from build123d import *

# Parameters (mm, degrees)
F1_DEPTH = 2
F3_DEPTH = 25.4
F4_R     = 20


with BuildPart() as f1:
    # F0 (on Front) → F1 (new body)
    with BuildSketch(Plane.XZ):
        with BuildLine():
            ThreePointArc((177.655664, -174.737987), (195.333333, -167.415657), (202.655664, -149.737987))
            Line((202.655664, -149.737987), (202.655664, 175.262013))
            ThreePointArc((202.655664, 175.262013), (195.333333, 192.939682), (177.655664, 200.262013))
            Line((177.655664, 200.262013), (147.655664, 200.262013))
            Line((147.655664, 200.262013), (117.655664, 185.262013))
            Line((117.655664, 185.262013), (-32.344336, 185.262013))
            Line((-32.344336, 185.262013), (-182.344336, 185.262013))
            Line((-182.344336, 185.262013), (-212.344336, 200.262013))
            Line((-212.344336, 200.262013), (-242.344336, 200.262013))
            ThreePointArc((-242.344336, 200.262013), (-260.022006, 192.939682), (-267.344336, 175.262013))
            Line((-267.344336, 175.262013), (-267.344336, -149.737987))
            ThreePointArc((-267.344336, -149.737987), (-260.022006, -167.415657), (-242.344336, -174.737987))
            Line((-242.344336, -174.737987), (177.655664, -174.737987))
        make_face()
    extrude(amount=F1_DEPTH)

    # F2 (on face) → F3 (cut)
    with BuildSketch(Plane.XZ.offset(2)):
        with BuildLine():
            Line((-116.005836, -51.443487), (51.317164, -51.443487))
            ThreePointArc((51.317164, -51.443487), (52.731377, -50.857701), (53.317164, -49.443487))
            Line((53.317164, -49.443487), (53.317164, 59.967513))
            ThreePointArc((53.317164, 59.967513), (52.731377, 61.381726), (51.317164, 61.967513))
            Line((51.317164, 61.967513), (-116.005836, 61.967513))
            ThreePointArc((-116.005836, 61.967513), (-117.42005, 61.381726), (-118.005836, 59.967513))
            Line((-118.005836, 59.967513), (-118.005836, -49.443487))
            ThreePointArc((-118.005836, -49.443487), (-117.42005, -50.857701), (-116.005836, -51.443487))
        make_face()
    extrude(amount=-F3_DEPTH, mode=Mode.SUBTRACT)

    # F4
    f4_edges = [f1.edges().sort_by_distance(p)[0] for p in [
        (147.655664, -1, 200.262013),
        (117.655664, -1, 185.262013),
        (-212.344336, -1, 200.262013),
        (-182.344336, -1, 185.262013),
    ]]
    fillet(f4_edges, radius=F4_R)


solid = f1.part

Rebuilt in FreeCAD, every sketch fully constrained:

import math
import FreeCAD as App
import Part
import Sketcher

V = App.Vector
Q = App.Units.Quantity


def edges_at(feature, points):
    """Names of the edges that pass closest to the given points."""
    edges = feature.Shape.Edges
    near = lambda p: min(range(len(edges)), key=lambda i: edges[i].distToShape(Part.Vertex(*p))[0])
    return sorted({f"Edge{near(p) + 1}" for p in points})

doc = App.newDocument("Part")
body = doc.addObject("PartDesign::Body", "Body")

# Sketch on XZ plane
sketch1 = body.newObject("Sketcher::SketchObject", "Sketch")
sketch1.AttachmentSupport = (doc.getObject("XZ_Plane"), [""])
sketch1.MapMode = "FlatFace"
sketch1.addGeometry([
    Part.ArcOfCircle(Part.Circle(V(177.655664, -149.737987, 0), V(0, 0, 1), 25), math.radians(-90), math.radians(0)),  # 0
    Part.LineSegment(V(202.655664, -149.737987, 0), V(202.655664, 175.262013, 0)),  # 1
    Part.ArcOfCircle(Part.Circle(V(177.655662, 175.262011, 0), V(0, 0, 1), 25.000002), math.radians(0.000004), math.radians(89.999996)),  # 2
    Part.LineSegment(V(177.655664, 200.262013, 0), V(147.655664, 200.262013, 0)),  # 3
    Part.LineSegment(V(147.655664, 200.262013, 0), V(117.655664, 185.262013, 0)),  # 4
    Part.LineSegment(V(117.655664, 185.262013, 0), V(-182.344336, 185.262013, 0)),  # 5
    Part.LineSegment(V(-182.344336, 185.262013, 0), V(-212.344336, 200.262013, 0)),  # 6
    Part.LineSegment(V(-212.344336, 200.262013, 0), V(-242.344336, 200.262013, 0)),  # 7
    Part.ArcOfCircle(Part.Circle(V(-242.344336, 175.262013, 0), V(0, 0, 1), 25), math.radians(90), math.radians(180)),  # 8
    Part.LineSegment(V(-267.344336, 175.262013, 0), V(-267.344336, -149.737987, 0)),  # 9
    Part.ArcOfCircle(Part.Circle(V(-242.344338, -149.737989, 0), V(0, 0, 1), 24.999998), math.radians(179.999996), math.radians(270.000004)),  # 10
    Part.LineSegment(V(-242.344336, -174.737987, 0), V(177.655664, -174.737987, 0)),  # 11
], False)
sketch1.addConstraint([
    Sketcher.Constraint("Tangent", 0, 2, 1, 1),
    Sketcher.Constraint("Tangent", 1, 2, 2, 1),
    Sketcher.Constraint("Tangent", 2, 2, 3, 1),
    Sketcher.Constraint("Coincident", 3, 2, 4, 1),
    Sketcher.Constraint("Coincident", 4, 2, 5, 1),
    Sketcher.Constraint("Coincident", 5, 2, 6, 1),
    Sketcher.Constraint("Coincident", 6, 2, 7, 1),
    Sketcher.Constraint("Tangent", 7, 2, 8, 1),
    Sketcher.Constraint("Tangent", 8, 2, 9, 1),
    Sketcher.Constraint("Tangent", 9, 2, 10, 1),
    Sketcher.Constraint("Tangent", 10, 2, 11, 1),
    Sketcher.Constraint("Tangent", 11, 2, 0, 1),
    Sketcher.Constraint("Vertical", 1),
    Sketcher.Constraint("Horizontal", 3),
    Sketcher.Constraint("Horizontal", 5),
    Sketcher.Constraint("Horizontal", 7),
    Sketcher.Constraint("Vertical", 9),
    Sketcher.Constraint("Horizontal", 11),
    Sketcher.Constraint("Equal", 0, 2),
    Sketcher.Constraint("Equal", 2, 8),
    Sketcher.Constraint("Equal", 8, 10),
    Sketcher.Constraint("Horizontal", 2, 3, 8, 3),
    Sketcher.Constraint("Equal", 3, 7),
    Sketcher.Constraint("Equal", 4, 6),
    Sketcher.Constraint("Radius", 0, Q("25 mm")),
    Sketcher.Constraint("DistanceX", 3, 2, 3, 1, Q("30 mm")),
    Sketcher.Constraint("DistanceX", 5, 2, 5, 1, Q("300 mm")),
    Sketcher.Constraint("DistanceX", 11, 1, 11, 2, Q("420 mm")),
    Sketcher.Constraint("DistanceY", 1, 1, 1, 2, Q("325 mm")),
    Sketcher.Constraint("DistanceY", 4, 2, 3, 2, Q("15 mm")),
    Sketcher.Constraint("DistanceY", -1, 1, 2, 3, Q("175.262011 mm")),
    Sketcher.Constraint("DistanceX", -1, 1, 0, 3, Q("177.655664 mm")),
])
pad1 = body.newObject("PartDesign::Pad", "Pad")
pad1.Profile = sketch1
pad1.Length = 2

# Sketch on XZ plane
sketch2 = body.newObject("Sketcher::SketchObject", "Sketch001")
sketch2.AttachmentSupport = (doc.getObject("XZ_Plane"), [""])
sketch2.MapMode = "FlatFace"
sketch2.AttachmentOffset = App.Placement(V(0, 0, 2), App.Rotation())
sketch2.addGeometry([
    Part.LineSegment(V(-116.005836, -51.443487, 0), V(51.317164, -51.443487, 0)),  # 0
    Part.ArcOfCircle(Part.Circle(V(51.317164, -49.443487, 0), V(0, 0, 1), 2), math.radians(-89.999994), math.radians(-0.000006)),  # 1
    Part.LineSegment(V(53.317164, -49.443487, 0), V(53.317164, 59.967513, 0)),  # 2
    Part.ArcOfCircle(Part.Circle(V(51.317162, 59.967511, 0), V(0, 0, 1), 2.000002), math.radians(0.000055), math.radians(89.999945)),  # 3
    Part.LineSegment(V(51.317164, 61.967513, 0), V(-116.005836, 61.967513, 0)),  # 4
    Part.ArcOfCircle(Part.Circle(V(-116.005836, 59.967513, 0), V(0, 0, 1), 2), math.radians(90.000006), math.radians(179.999994)),  # 5
    Part.LineSegment(V(-118.005836, 59.967513, 0), V(-118.005836, -49.443487, 0)),  # 6
    Part.ArcOfCircle(Part.Circle(V(-116.005837, -49.443488, 0), V(0, 0, 1), 1.999999), math.radians(179.999957), math.radians(270.000043)),  # 7
], False)
sketch2.addConstraint([
    Sketcher.Constraint("Tangent", 0, 2, 1, 1),
    Sketcher.Constraint("Tangent", 1, 2, 2, 1),
    Sketcher.Constraint("Tangent", 2, 2, 3, 1),
    Sketcher.Constraint("Tangent", 3, 2, 4, 1),
    Sketcher.Constraint("Tangent", 4, 2, 5, 1),
    Sketcher.Constraint("Tangent", 5, 2, 6, 1),
    Sketcher.Constraint("Tangent", 6, 2, 7, 1),
    Sketcher.Constraint("Tangent", 7, 2, 0, 1),
    Sketcher.Constraint("Horizontal", 0),
    Sketcher.Constraint("Vertical", 2),
    Sketcher.Constraint("Horizontal", 4),
    Sketcher.Constraint("Vertical", 6),
    Sketcher.Constraint("Equal", 1, 3),
    Sketcher.Constraint("Equal", 3, 5),
    Sketcher.Constraint("Equal", 5, 7),
    Sketcher.Constraint("Radius", 1, Q("2 mm")),
    Sketcher.Constraint("DistanceX", 0, 1, 0, 2, Q("167.323 mm")),
    Sketcher.Constraint("DistanceY", 2, 1, 2, 2, Q("109.411 mm")),
    Sketcher.Constraint("DistanceY", -1, 1, 3, 3, Q("59.967511 mm")),
    Sketcher.Constraint("DistanceX", -1, 1, 1, 3, Q("51.317164 mm")),
])
pocket1 = body.newObject("PartDesign::Pocket", "Pocket")
pocket1.Profile = sketch2
pocket1.Length = 25.4
doc.recompute()

fillet = body.newObject("PartDesign::Fillet", "Fillet")
fillet.Base = (pocket1, edges_at(pocket1, [
    (147.656, -1, 200.262),
    (117.656, -1, 185.262),
    (-212.344, -1, 200.262),
    (-182.344, -1, 185.262),
]))
fillet.Radius = 20

doc.recompute()
